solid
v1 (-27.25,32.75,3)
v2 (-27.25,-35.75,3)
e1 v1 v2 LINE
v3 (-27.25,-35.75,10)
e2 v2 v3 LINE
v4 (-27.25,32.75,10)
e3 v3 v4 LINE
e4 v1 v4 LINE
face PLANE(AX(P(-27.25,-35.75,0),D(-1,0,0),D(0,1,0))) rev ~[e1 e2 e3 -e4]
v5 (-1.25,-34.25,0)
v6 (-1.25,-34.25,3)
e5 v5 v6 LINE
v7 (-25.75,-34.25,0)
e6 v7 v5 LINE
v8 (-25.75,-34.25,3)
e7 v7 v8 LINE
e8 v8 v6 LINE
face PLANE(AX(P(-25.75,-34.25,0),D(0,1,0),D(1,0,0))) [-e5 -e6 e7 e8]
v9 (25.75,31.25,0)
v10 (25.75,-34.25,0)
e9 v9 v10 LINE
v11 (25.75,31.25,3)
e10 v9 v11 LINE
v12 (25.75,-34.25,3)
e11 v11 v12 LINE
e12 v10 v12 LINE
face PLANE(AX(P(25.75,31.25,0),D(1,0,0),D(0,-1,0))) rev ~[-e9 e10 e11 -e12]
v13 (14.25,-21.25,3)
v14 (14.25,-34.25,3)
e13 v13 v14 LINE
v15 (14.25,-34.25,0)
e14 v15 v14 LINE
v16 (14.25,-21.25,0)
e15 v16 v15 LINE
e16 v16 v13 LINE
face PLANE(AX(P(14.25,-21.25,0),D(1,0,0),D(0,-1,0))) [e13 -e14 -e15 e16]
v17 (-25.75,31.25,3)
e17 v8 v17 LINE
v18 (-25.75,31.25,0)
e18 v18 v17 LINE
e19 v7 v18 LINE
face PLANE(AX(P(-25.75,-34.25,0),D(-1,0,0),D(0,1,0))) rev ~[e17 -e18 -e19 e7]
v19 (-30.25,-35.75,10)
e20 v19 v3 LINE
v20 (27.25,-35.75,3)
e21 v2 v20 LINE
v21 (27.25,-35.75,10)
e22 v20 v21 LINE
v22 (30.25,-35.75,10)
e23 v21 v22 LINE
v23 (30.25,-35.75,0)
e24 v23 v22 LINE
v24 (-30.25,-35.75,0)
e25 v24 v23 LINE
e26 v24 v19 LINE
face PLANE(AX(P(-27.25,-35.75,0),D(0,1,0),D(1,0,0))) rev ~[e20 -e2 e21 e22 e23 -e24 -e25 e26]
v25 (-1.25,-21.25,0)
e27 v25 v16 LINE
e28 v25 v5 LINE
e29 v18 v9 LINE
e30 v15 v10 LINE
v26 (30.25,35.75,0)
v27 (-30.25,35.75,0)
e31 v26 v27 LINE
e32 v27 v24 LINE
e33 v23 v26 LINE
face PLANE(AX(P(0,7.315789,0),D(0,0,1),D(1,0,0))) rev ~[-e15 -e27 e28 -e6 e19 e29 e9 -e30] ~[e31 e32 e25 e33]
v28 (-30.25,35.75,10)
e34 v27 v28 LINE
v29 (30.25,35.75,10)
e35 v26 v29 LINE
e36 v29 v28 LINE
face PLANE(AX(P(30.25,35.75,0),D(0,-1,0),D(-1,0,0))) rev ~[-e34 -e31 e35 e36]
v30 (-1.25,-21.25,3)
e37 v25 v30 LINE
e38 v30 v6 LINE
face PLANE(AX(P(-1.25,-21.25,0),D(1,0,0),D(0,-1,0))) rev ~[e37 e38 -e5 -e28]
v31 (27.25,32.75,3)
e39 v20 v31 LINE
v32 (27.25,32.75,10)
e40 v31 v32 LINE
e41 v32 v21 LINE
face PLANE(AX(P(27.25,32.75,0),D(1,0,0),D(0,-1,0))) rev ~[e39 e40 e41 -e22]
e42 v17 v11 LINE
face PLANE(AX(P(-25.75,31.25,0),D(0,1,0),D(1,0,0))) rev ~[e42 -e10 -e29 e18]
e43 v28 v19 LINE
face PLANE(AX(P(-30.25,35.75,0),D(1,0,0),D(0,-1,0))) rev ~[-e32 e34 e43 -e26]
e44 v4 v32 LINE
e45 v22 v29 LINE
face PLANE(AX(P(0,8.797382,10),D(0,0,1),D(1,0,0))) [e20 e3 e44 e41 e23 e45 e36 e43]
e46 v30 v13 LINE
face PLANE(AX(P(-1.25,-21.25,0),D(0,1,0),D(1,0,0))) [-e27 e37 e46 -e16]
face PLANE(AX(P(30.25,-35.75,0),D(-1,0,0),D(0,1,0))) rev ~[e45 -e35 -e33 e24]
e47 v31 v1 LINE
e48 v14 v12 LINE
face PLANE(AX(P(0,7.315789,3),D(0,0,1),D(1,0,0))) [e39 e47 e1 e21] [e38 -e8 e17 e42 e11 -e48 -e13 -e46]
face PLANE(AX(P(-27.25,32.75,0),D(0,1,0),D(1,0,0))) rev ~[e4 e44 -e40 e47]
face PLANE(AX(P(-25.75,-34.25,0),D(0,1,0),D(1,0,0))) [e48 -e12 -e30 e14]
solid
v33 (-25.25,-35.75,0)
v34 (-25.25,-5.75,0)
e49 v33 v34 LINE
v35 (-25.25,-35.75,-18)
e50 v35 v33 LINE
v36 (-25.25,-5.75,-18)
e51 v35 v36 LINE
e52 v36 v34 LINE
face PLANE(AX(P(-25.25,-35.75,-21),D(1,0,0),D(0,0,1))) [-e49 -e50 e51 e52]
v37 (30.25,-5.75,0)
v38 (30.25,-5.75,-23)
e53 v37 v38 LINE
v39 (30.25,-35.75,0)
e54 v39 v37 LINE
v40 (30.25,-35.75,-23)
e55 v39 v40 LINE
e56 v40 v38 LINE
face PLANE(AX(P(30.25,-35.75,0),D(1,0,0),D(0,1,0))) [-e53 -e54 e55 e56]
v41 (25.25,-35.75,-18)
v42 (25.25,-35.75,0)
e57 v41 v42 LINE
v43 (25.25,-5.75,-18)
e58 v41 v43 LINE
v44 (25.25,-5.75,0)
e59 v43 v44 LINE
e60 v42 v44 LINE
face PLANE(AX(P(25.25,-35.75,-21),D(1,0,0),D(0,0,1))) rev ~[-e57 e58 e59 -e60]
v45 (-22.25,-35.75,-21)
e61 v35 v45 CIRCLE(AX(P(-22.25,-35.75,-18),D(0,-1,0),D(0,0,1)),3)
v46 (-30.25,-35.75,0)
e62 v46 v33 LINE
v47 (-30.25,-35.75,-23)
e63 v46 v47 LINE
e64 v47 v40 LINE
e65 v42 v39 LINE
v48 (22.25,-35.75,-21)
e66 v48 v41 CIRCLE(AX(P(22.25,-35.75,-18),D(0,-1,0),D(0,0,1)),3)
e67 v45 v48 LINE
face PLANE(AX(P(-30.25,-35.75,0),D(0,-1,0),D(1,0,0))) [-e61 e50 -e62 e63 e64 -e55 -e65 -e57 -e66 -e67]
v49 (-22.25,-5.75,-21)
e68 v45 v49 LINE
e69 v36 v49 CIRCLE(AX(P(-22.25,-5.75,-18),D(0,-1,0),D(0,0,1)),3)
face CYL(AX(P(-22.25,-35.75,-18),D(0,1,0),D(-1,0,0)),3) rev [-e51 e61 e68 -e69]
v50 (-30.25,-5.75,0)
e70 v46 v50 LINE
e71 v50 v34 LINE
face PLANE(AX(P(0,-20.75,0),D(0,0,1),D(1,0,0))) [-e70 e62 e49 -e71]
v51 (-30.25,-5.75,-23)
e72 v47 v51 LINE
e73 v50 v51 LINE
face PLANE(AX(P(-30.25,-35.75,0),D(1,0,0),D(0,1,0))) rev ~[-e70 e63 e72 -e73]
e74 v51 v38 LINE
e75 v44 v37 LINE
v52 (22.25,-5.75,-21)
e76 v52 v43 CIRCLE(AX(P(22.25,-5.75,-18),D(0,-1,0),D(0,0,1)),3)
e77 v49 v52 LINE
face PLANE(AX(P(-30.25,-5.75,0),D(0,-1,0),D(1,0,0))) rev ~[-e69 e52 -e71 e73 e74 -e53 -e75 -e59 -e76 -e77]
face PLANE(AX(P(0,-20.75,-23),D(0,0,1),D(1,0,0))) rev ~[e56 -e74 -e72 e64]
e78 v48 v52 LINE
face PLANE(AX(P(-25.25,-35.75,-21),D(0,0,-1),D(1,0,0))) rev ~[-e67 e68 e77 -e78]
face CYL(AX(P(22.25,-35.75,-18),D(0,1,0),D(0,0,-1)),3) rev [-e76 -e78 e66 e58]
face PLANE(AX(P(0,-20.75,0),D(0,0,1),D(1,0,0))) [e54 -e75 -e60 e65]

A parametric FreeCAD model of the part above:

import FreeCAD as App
import Part
import Sketcher
from FreeCAD import Vector
Q = App.Units.Quantity


def edges_at(feature, points):
    """Names of the edges that pass closest to the given points."""
    edges = feature.Shape.Edges
    near = lambda p: min(range(len(edges)), key=lambda i: edges[i].distToShape(Part.Vertex(*p))[0])
    return sorted({f"Edge{near(p) + 1}" for p in points})


def add_polygon(sketch, points):
    """Adds a closed chain of lines whose ends are joined by coincident constraints."""
    first, n = sketch.GeometryCount, len(points)
    for a, b in zip(points, points[1:] + points[:1]):
        sketch.addGeometry(Part.LineSegment(App.Vector(*a, 0), App.Vector(*b, 0)), False)
    for i in range(n):
        sketch.addConstraint(Sketcher.Constraint("Coincident", first + i, 2, first + (i + 1) % n, 1))

doc = App.newDocument("Part")
body = doc.addObject("PartDesign::Body", "Body")

sketch1 = body.newObject("Sketcher::SketchObject", "Sketch")
sketch1.AttachmentSupport = (doc.getObject("XY_Plane"), [""])
sketch1.MapMode = "FlatFace"
add_polygon(sketch1, [(30.25, -35.75), (30.25, 35.75), (-30.25, 35.75), (-30.25, -35.75), (-27.25, -35.75), (-27.25, 32.75), (27.25, 32.75), (27.25, -35.75)])
sketch1.addConstraint([
    Sketcher.Constraint("Vertical", 0),
    Sketcher.Constraint("Horizontal", 1),
    Sketcher.Constraint("Vertical", 2),
    Sketcher.Constraint("Horizontal", 3),
    Sketcher.Constraint("Vertical", 4),
    Sketcher.Constraint("Horizontal", 5),
    Sketcher.Constraint("Vertical", 6),
    Sketcher.Constraint("Horizontal", 7),
    Sketcher.Constraint("Symmetric", 0, 2, 2, 2, -1, 1),
    Sketcher.Constraint("Symmetric", 3, 2, 6, 2, -2),
    Sketcher.Constraint("DistanceX", 3, 1, 3, 2, Q("3 mm")),
    Sketcher.Constraint("DistanceX", 1, 2, 1, 1, Q("60.5 mm")),
    Sketcher.Constraint("DistanceY", 0, 1, 0, 2, Q("71.5 mm")),
    Sketcher.Constraint("DistanceY", 4, 1, 4, 2, Q("68.5 mm")),
])
pad1 = body.newObject("PartDesign::Pad", "Pad")
pad1.Profile = sketch1
pad1.Length = 10

sketch2 = body.newObject("Sketcher::SketchObject", "Sketch001")
sketch2.AttachmentSupport = (doc.getObject("XY_Plane"), [""])
sketch2.MapMode = "FlatFace"
add_polygon(sketch2, [(-27.25, -35.75), (27.25, -35.75), (27.25, 32.75), (-27.25, 32.75)])
add_polygon(sketch2, [(-25.75, -34.25), (-25.75, 31.25), (25.75, 31.25), (25.75, -34.25)])
sketch2.addConstraint([
    Sketcher.Constraint("Horizontal", 0),
    Sketcher.Constraint("Vertical", 1),
    Sketcher.Constraint("Horizontal", 2),
    Sketcher.Constraint("Vertical", 3),
    Sketcher.Constraint("Vertical", 4),
    Sketcher.Constraint("Horizontal", 5),
    Sketcher.Constraint("Vertical", 6),
    Sketcher.Constraint("Horizontal", 7),
    Sketcher.Constraint("DistanceX", 0, 1, 0, 2, Q("54.5 mm")),
    Sketcher.Constraint("DistanceX", 5, 1, 5, 2, Q("51.5 mm")),
    Sketcher.Constraint("DistanceY", 1, 1, 1, 2, Q("68.5 mm")),
    Sketcher.Constraint("DistanceY", 4, 1, 4, 2, Q("65.5 mm")),
    Sketcher.Constraint("DistanceX", 4, 2, 1, 2, Q("53 mm")),
    Sketcher.Constraint("DistanceY", 3, 2, 4, 2, Q("67 mm")),
    Sketcher.Constraint("DistanceX", -1, 1, 0, 2, Q("27.25 mm")),
    Sketcher.Constraint("DistanceY", 0, 2, -1, 1, Q("35.75 mm")),
])
pad2 = body.newObject("PartDesign::Pad", "Pad001")
pad2.Profile = sketch2
pad2.Length = 3

sketch3 = body.newObject("Sketcher::SketchObject", "Sketch002")
sketch3.AttachmentSupport = (doc.getObject("XY_Plane"), [""])
sketch3.MapMode = "FlatFace"
add_polygon(sketch3, [(-1.25, -34.25), (-1.25, -21.25), (14.25, -21.25), (14.25, -34.25)])
sketch3.addConstraint([
    Sketcher.Constraint("Vertical", 0),
    Sketcher.Constraint("Horizontal", 1),
    Sketcher.Constraint("Vertical", 2),
    Sketcher.Constraint("Horizontal", 3),
    Sketcher.Constraint("DistanceY", 0, 1, 0, 2, Q("13 mm")),
    Sketcher.Constraint("DistanceX", 1, 1, 1, 2, Q("15.5 mm")),
    Sketcher.Constraint("DistanceX", 0, 2, -1, 1, Q("1.25 mm")),
    Sketcher.Constraint("DistanceY", 0, 2, -1, 1, Q("21.25 mm")),
])
pad3 = body.newObject("PartDesign::Pad", "Pad002")
pad3.Profile = sketch3
pad3.Length = 3
body2 = doc.addObject("PartDesign::Body", "Body001")

sketch4 = body2.newObject("Sketcher::SketchObject", "Sketch003")
sketch4.AttachmentSupport = (doc.getObject("XY_Plane001"), [""])
sketch4.MapMode = "FlatFace"
add_polygon(sketch4, [(-30.25, -5.75), (-30.25, -35.75), (30.25, -35.75), (30.25, -5.75)])
sketch4.addConstraint([
    Sketcher.Constraint("Vertical", 0),
    Sketcher.Constraint("Horizontal", 1),
    Sketcher.Constraint("Vertical", 2),
    Sketcher.Constraint("Horizontal", 3),
    Sketcher.Constraint("DistanceY", 0, 2, 0, 1, Q("30 mm")),
    Sketcher.Constraint("DistanceX", 1, 1, 1, 2, Q("60.5 mm")),
    Sketcher.Constraint("DistanceX", 0, 2, -1, 1, Q("30.25 mm")),
    Sketcher.Constraint("DistanceY", 0, 2, -1, 1, Q("35.75 mm")),
])
pad4 = body2.newObject("PartDesign::Pad", "Pad003")
pad4.Profile = sketch4
pad4.Length = 23
pad4.Reversed = True

sketch5 = body2.newObject("Sketcher::SketchObject", "Sketch004")
sketch5.AttachmentSupport = (doc.getObject("XZ_Plane001"), [""])
sketch5.MapMode = "FlatFace"
sketch5.AttachmentOffset = App.Placement(Vector(0, 0, 35.75), App.Rotation())
add_polygon(sketch5, [(-25.25, 0), (-25.25, -21), (25.25, -21), (25.25, 0)])
sketch5.addConstraint([
    Sketcher.Constraint("Vertical", 0),
    Sketcher.Constraint("Horizontal", 1),
    Sketcher.Constraint("Vertical", 2),
    Sketcher.Constraint("Horizontal", 3),
    Sketcher.Constraint("Symmetric", 2, 2, 3, 2, -1, 1),
    Sketcher.Constraint("DistanceY", 0, 2, 0, 1, Q("21 mm")),
    Sketcher.Constraint("DistanceX", 1, 1, 1, 2, Q("50.5 mm")),
])
pocket1 = body2.newObject("PartDesign::Pocket", "Pocket")
pocket1.Profile = sketch5
pocket1.Length = 38.4
doc.recompute()

fillet = body2.newObject("PartDesign::Fillet", "Fillet")
fillet.Base = (pocket1, edges_at(pocket1, [(-25.25, -20.75, -21), (25.25, -20.75, -21)]))
fillet.Radius = 3

doc.recompute()
